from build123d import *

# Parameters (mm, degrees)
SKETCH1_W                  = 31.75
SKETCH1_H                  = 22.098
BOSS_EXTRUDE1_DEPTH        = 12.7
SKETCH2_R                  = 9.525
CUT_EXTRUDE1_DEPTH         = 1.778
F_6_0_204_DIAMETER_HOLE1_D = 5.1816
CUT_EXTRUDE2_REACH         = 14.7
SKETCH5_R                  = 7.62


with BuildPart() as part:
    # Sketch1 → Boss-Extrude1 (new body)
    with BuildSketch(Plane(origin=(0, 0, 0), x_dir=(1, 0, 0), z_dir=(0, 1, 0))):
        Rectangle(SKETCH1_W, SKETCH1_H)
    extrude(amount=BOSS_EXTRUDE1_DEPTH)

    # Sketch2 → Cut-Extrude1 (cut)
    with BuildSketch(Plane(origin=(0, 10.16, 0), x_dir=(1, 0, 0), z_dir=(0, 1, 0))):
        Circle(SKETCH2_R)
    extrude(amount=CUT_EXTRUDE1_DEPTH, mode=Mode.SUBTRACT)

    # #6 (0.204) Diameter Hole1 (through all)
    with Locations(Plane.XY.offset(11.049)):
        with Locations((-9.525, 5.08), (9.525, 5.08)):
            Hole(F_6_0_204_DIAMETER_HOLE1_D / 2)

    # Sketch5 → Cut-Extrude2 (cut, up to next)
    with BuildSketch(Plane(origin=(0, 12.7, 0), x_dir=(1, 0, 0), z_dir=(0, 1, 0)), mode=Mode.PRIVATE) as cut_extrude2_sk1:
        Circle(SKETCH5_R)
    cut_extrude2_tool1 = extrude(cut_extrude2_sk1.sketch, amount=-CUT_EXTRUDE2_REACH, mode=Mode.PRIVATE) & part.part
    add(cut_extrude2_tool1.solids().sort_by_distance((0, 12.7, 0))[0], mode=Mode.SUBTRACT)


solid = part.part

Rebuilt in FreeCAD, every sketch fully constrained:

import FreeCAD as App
import Part
import Sketcher
from FreeCAD import Vector
Q = App.Units.Quantity


def add_polygon(sketch, points):
    """Adds a closed chain of lines whose ends are joined by coincident constraints."""
    first, n = sketch.GeometryCount, len(points)
    for a, b in zip(points, points[1:] + points[:1]):
        sketch.addGeometry(Part.LineSegment(App.Vector(*a, 0), App.Vector(*b, 0)), False)
    for i in range(n):
        sketch.addConstraint(Sketcher.Constraint("Coincident", first + i, 2, first + (i + 1) % n, 1))

doc = App.newDocument("Part")
body = doc.addObject("PartDesign::Body", "Body")

# Sketch on XZ plane
sketch1 = body.newObject("Sketcher::SketchObject", "Sketch")
sketch1.AttachmentSupport = (doc.getObject("XZ_Plane"), [""])
sketch1.MapMode = "FlatFace"
add_polygon(sketch1, [(-16, -11), (-16, 11), (16, 11), (16, -11)])  # lines 0-3
sketch1.addConstraint(Sketcher.Constraint("Vertical", 0))
sketch1.addConstraint(Sketcher.Constraint("Horizontal", 1))
sketch1.addConstraint(Sketcher.Constraint("Vertical", 2))
sketch1.addConstraint(Sketcher.Constraint("Horizontal", 3))
sketch1.addConstraint(Sketcher.Constraint("Symmetric", 0, 2, 2, 2, -1, 1))
sketch1.addConstraint(Sketcher.Constraint("DistanceX", 1, 1, 1, 2, Q("1.25 in")))
sketch1.addConstraint(Sketcher.Constraint("DistanceY", 0, 1, 0, 2, Q("0.87 in")))
pad1 = body.newObject("PartDesign::Pad", "Pad")
pad1.Profile = sketch1
pad1.Length = Q("0.5 in")
pad1.Reversed = True

# Sketch on XZ plane
sketch2 = body.newObject("Sketcher::SketchObject", "Sketch001")
sketch2.AttachmentSupport = (doc.getObject("XZ_Plane"), [""])
sketch2.MapMode = "FlatFace"
sketch2.AttachmentOffset = App.Placement(Vector(0, 0, -0.4 * 25.4), App.Rotation())
sketch2.addGeometry(Part.Circle(Vector(0, 0, 0), Vector(0, 0, 1), 10), False)
sketch2.addConstraint(Sketcher.Constraint("Coincident", 0, 3, -1, 1))
sketch2.addConstraint(Sketcher.Constraint("Diameter", 0, Q("0.75 in")))
pocket1 = body.newObject("PartDesign::Pocket", "Pocket")
pocket1.Profile = sketch2
pocket1.Length = Q("0.07 in")

# Sketch on XY plane
sketch3 = body.newObject("Sketcher::SketchObject", "Sketch002")
sketch3.AttachmentSupport = (doc.getObject("XY_Plane"), [""])
sketch3.MapMode = "FlatFace"
sketch3.AttachmentOffset = App.Placement(Vector(0, 0, 0.435 * 25.4), App.Rotation())
sketch3.addGeometry(Part.Circle(Vector(-9.5, 5.1, 0), Vector(0, 0, 1), 2.6), False)
sketch3.addGeometry(Part.Circle(Vector(9.5, 5.1, 0), Vector(0, 0, 1), 2.6), False)
sketch3.addConstraint(Sketcher.Constraint("Equal", 0, 1))
sketch3.addConstraint(Sketcher.Constraint("Symmetric", 0, 3, 1, 3, -2))
sketch3.addConstraint(Sketcher.Constraint("Diameter", 0, Q("0.204 in")))
sketch3.addConstraint(Sketcher.Constraint("DistanceY", -1, 1, 0, 3, Q("0.2 in")))
sketch3.addConstraint(Sketcher.Constraint("DistanceX", 0, 3, 1, 3, Q("0.75 in")))
doc.recompute()
hole = body.newObject("PartDesign::Hole", "Hole")
hole.Profile = sketch3
hole.ThreadType = "None"
hole.Diameter = Q("0.204 in")
hole.DepthType = "ThroughAll"

# Sketch on XZ plane
sketch4 = body.newObject("Sketcher::SketchObject", "Sketch003")
sketch4.AttachmentSupport = (doc.getObject("XZ_Plane"), [""])
sketch4.MapMode = "FlatFace"
sketch4.AttachmentOffset = App.Placement(Vector(0, 0, -0.5 * 25.4), App.Rotation())
sketch4.addGeometry(Part.Circle(Vector(0, 0, 0), Vector(0, 0, 1), 8), False)
sketch4.addConstraint(Sketcher.Constraint("Coincident", 0, 3, -1, 1))
sketch4.addConstraint(Sketcher.Constraint("Diameter", 0, Q("0.6 in")))
pocket2 = body.newObject("PartDesign::Pocket", "Pocket001")
pocket2.Profile = sketch4
pocket2.Type = "UpToFirst"
pocket2.Reversed = True

doc.recompute()
